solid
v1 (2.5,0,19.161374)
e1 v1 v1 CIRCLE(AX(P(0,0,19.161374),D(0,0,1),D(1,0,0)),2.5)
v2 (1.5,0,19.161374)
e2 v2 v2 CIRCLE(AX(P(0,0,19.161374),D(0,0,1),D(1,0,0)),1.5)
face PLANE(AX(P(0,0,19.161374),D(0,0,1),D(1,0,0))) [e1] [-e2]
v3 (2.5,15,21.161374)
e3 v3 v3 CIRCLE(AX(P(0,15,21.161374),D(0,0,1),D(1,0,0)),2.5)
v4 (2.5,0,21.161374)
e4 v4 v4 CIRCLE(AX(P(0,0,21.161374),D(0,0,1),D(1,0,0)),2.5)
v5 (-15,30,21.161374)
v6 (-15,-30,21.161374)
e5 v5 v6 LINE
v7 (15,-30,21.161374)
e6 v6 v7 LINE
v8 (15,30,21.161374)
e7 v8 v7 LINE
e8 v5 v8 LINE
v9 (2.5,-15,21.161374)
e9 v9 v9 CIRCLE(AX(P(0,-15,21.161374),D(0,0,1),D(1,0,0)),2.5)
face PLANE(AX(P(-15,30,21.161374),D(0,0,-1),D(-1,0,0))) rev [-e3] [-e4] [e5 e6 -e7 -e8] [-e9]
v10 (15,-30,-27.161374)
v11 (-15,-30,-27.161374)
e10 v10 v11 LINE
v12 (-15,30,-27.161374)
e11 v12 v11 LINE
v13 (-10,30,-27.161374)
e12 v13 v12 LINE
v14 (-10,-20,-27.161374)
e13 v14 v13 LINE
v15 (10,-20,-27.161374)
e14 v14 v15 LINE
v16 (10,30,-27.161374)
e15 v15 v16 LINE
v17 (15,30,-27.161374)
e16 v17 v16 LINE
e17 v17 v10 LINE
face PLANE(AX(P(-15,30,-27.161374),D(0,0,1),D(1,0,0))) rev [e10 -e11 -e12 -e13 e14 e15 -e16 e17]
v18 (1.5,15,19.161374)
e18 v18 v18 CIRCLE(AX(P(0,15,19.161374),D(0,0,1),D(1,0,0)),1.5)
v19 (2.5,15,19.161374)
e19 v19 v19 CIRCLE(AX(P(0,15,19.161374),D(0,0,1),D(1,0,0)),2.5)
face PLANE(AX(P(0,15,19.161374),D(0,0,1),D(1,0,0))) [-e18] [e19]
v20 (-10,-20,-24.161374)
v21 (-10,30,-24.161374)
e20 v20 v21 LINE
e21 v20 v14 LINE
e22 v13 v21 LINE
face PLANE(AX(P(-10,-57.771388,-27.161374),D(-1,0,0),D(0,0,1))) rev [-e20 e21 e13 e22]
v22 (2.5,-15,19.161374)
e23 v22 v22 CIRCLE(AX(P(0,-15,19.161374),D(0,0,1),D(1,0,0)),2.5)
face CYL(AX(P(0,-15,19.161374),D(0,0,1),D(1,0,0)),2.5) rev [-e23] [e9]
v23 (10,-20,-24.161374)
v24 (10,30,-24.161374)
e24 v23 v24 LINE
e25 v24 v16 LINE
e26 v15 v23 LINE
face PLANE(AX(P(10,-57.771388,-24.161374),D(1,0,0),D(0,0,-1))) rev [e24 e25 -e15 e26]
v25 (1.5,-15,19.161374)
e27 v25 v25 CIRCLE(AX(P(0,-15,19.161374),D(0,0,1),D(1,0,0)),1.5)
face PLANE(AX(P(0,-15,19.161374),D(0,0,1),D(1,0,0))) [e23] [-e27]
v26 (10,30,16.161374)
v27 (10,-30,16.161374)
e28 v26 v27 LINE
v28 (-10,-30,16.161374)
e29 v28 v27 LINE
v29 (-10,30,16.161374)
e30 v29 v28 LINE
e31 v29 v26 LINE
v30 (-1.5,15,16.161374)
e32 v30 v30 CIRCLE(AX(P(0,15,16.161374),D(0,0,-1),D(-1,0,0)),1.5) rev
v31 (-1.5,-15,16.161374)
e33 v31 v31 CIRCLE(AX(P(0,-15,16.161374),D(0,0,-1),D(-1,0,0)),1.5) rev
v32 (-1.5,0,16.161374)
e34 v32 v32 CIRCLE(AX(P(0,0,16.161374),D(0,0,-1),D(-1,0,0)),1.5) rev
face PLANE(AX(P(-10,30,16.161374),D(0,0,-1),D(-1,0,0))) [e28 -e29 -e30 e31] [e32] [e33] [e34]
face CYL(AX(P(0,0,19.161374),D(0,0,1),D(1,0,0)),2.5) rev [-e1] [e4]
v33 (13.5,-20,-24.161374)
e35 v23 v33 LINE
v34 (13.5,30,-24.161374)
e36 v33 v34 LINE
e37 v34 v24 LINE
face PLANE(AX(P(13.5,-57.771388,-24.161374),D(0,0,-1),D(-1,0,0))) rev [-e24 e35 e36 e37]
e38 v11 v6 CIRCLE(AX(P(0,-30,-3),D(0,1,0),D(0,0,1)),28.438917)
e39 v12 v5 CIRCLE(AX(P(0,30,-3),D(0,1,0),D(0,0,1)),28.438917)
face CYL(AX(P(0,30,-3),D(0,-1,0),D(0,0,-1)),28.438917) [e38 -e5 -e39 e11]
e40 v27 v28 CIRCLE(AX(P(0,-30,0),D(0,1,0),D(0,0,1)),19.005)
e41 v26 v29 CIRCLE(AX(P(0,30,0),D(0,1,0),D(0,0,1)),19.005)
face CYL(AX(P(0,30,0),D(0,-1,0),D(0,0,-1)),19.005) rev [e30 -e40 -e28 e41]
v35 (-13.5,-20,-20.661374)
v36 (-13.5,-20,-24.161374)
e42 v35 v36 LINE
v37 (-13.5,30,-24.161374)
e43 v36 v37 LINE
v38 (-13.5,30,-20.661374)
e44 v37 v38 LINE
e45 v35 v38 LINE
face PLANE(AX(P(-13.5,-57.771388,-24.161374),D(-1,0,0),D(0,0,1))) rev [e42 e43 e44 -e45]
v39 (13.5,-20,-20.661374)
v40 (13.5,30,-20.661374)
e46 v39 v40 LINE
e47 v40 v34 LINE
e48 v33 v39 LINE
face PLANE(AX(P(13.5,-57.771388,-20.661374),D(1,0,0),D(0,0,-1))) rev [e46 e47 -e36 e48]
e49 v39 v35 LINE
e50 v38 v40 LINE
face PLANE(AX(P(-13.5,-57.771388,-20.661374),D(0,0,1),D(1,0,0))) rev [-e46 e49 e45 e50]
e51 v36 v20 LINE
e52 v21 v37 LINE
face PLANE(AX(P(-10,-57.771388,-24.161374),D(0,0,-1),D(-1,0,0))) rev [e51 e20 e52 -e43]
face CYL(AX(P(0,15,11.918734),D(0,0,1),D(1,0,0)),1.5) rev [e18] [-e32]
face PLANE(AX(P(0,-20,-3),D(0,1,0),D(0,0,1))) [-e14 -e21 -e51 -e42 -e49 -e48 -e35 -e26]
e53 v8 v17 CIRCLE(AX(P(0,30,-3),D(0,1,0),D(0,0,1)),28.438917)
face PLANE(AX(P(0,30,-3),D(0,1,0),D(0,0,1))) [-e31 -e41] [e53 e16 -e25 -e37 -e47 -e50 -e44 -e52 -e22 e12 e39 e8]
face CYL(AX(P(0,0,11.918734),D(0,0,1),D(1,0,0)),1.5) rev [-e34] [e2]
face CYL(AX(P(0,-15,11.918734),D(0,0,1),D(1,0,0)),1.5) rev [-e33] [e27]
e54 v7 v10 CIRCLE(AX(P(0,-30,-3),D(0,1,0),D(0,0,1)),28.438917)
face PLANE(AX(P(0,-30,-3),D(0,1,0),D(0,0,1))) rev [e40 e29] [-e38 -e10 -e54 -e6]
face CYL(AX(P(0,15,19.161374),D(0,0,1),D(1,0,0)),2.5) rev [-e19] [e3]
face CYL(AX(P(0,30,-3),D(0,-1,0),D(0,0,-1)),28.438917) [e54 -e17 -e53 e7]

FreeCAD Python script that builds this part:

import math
import FreeCAD as App
import Part
import Sketcher
from FreeCAD import Vector


def add_polygon(sketch, points):
    """Adds a closed chain of lines whose ends are joined by coincident constraints."""
    first, n = sketch.GeometryCount, len(points)
    for a, b in zip(points, points[1:] + points[:1]):
        sketch.addGeometry(Part.LineSegment(App.Vector(*a, 0), App.Vector(*b, 0)), False)
    for i in range(n):
        sketch.addConstraint(Sketcher.Constraint("Coincident", first + i, 2, first + (i + 1) % n, 1))

doc = App.newDocument("Part")
body = doc.addObject("PartDesign::Body", "Body")

# Sketch on XZ plane
sketch1 = body.newObject("Sketcher::SketchObject", "Sketch")
sketch1.AttachmentSupport = (doc.getObject("XZ_Plane"), [""])
sketch1.MapMode = "FlatFace"
sketch1.addGeometry(Part.LineSegment(Vector(-15, 21.161374, 0), Vector(15, 21.161374, 0)), False)
sketch1.addGeometry(Part.ArcOfCircle(Part.Circle(Vector(0, -3, 0), Vector(0, 0, 1), 28.438917), math.radians(-58.166931), math.radians(58.166931)), False)
sketch1.addGeometry(Part.LineSegment(Vector(15, -27.161374, 0), Vector(-15, -27.161374, 0)), False)
sketch1.addGeometry(Part.ArcOfCircle(Part.Circle(Vector(0, -3, 0), Vector(0, 0, 1), 28.438917), math.radians(121.833069), math.radians(238.166931)), False)
sketch1.addGeometry(Part.LineSegment(Vector(10, 16.161374, 0), Vector(-10, 16.161374, 0)), False)
sketch1.addGeometry(Part.ArcOfCircle(Part.Circle(Vector(0, 0, 0), Vector(0, 0, 1), 19.005), math.radians(121.747534), math.radians(418.252466)), False)
sketch1.addConstraint(Sketcher.Constraint("Coincident", 0, 2, 1, 2))
sketch1.addConstraint(Sketcher.Constraint("Coincident", 1, 1, 2, 1))
sketch1.addConstraint(Sketcher.Constraint("Coincident", 2, 2, 3, 2))
sketch1.addConstraint(Sketcher.Constraint("Coincident", 3, 1, 0, 1))
sketch1.addConstraint(Sketcher.Constraint("Coincident", 4, 1, 5, 2))
sketch1.addConstraint(Sketcher.Constraint("Coincident", 5, 1, 4, 2))
sketch1.addConstraint(Sketcher.Constraint("Horizontal", 0))
sketch1.addConstraint(Sketcher.Constraint("Horizontal", 2))
sketch1.addConstraint(Sketcher.Constraint("Horizontal", 4))
sketch1.addConstraint(Sketcher.Constraint("Coincident", 5, 3, -1, 1))
sketch1.addConstraint(Sketcher.Constraint("Coincident", 3, 3, 1, 3))
sketch1.addConstraint(Sketcher.Constraint("Equal", 1, 3))
sketch1.addConstraint(Sketcher.Constraint("PointOnObject", 1, 3, -2))
sketch1.addConstraint(Sketcher.Constraint("Vertical", 0, 2, 1, 1))
sketch1.addConstraint(Sketcher.Constraint("DistanceX", 0, 1, 0, 2, 30.0))
sketch1.addConstraint(Sketcher.Constraint("DistanceX", 4, 2, 4, 1, 20.0))
sketch1.addConstraint(Sketcher.Constraint("DistanceY", 1, 3, -1, 1, 3.0))
sketch1.addConstraint(Sketcher.Constraint("Radius", 5, 19.005))
sketch1.addConstraint(Sketcher.Constraint("DistanceY", 4, 1, 0, 2, 5.0))
pad1 = body.newObject("PartDesign::Pad", "Pad")
pad1.Profile = sketch1
pad1.Length = 60
pad1.Midplane = True

# Sketch on XZ plane
sketch2 = body.newObject("Sketcher::SketchObject", "Sketch001")
sketch2.AttachmentSupport = (doc.getObject("XZ_Plane"), [""])
sketch2.MapMode = "FlatFace"
sketch2.AttachmentOffset = App.Placement(Vector(0, 0, -30), App.Rotation())
add_polygon(sketch2, [(-10, -27.161374), (-10, -24.161374), (-13.5, -24.161374), (-13.5, -20.661374), (13.5, -20.661374), (13.5, -24.161374), (10, -24.161374), (10, -27.161374)])  # lines 0-7
sketch2.addConstraint(Sketcher.Constraint("Vertical", 0))
sketch2.addConstraint(Sketcher.Constraint("Horizontal", 1))
sketch2.addConstraint(Sketcher.Constraint("Vertical", 2))
sketch2.addConstraint(Sketcher.Constraint("Horizontal", 3))
sketch2.addConstraint(Sketcher.Constraint("Vertical", 4))
sketch2.addConstraint(Sketcher.Constraint("Horizontal", 5))
sketch2.addConstraint(Sketcher.Constraint("Vertical", 6))
sketch2.addConstraint(Sketcher.Constraint("Horizontal", 7))
sketch2.addConstraint(Sketcher.Constraint("Symmetric", 1, 2, 4, 2, -2))
sketch2.addConstraint(Sketcher.Constraint("Equal", 1, 5))
sketch2.addConstraint(Sketcher.Constraint("Equal", 5, 2))
sketch2.addConstraint(Sketcher.Constraint("DistanceX", 3, 1, 3, 2, 27.0))
sketch2.addConstraint(Sketcher.Constraint("DistanceX", 7, 2, 7, 1, 20.0))
sketch2.addConstraint(Sketcher.Constraint("DistanceY", 0, 1, 0, 2, 3.0))
sketch2.addConstraint(Sketcher.Constraint("DistanceY", 0, 2, -1, 1, 24.161374))
pocket1 = body.newObject("PartDesign::Pocket", "Pocket")
pocket1.Profile = sketch2
pocket1.Length = 50
pocket1.Reversed = True

# Sketch on XY plane
sketch3 = body.newObject("Sketcher::SketchObject", "Sketch002")
sketch3.AttachmentSupport = (doc.getObject("XY_Plane"), [""])
sketch3.MapMode = "FlatFace"
sketch3.AttachmentOffset = App.Placement(Vector(0, 0, 21.161374), App.Rotation())
sketch3.addGeometry(Part.Circle(Vector(0, 0, 0), Vector(0, 0, 1), 1.5), False)
sketch3.addConstraint(Sketcher.Constraint("Coincident", 0, 3, -1, 1))
sketch3.addConstraint(Sketcher.Constraint("Diameter", 0, 3.0))
pocket2 = body.newObject("PartDesign::Pocket", "Pocket001")
pocket2.Profile = sketch3
pocket2.Length = 5

# Sketch on XY plane
sketch4 = body.newObject("Sketcher::SketchObject", "Sketch003")
sketch4.AttachmentSupport = (doc.getObject("XY_Plane"), [""])
sketch4.MapMode = "FlatFace"
sketch4.AttachmentOffset = App.Placement(Vector(0, 0, 21.161374), App.Rotation())
sketch4.addGeometry(Part.Circle(Vector(0, 0, 0), Vector(0, 0, 1), 2.5), False)
sketch4.addGeometry(Part.Circle(Vector(0, 0, 0), Vector(0, 0, 1), 1.5), False)
sketch4.addConstraint(Sketcher.Constraint("Coincident", 0, 3, -1, 1))
sketch4.addConstraint(Sketcher.Constraint("Coincident", 1, 3, -1, 1))
sketch4.addConstraint(Sketcher.Constraint("Diameter", 0, 5.0))
sketch4.addConstraint(Sketcher.Constraint("Diameter", 1, 3.0))
pocket3 = body.newObject("PartDesign::Pocket", "Pocket002")
pocket3.Profile = sketch4
pocket3.Length = 2
doc.recompute()

linearpattern = body.newObject("PartDesign::LinearPattern", "LinearPattern")
linearpattern.Originals = [pocket2, pocket3]
linearpattern.Direction = (doc.getObject("Y_Axis"), [""])
linearpattern.Mode = "offset"
linearpattern.Offset = 15
linearpattern.Occurrences = 2
linearpattern.Reversed = True
body.Tip = linearpattern
doc.recompute()

linearpattern2 = body.newObject("PartDesign::LinearPattern", "LinearPattern001")
linearpattern2.Originals = [pocket2, pocket3]
linearpattern2.Direction = (doc.getObject("Y_Axis"), [""])
linearpattern2.Mode = "offset"
linearpattern2.Offset = 15
linearpattern2.Occurrences = 2
body.Tip = linearpattern2

doc.recompute()
